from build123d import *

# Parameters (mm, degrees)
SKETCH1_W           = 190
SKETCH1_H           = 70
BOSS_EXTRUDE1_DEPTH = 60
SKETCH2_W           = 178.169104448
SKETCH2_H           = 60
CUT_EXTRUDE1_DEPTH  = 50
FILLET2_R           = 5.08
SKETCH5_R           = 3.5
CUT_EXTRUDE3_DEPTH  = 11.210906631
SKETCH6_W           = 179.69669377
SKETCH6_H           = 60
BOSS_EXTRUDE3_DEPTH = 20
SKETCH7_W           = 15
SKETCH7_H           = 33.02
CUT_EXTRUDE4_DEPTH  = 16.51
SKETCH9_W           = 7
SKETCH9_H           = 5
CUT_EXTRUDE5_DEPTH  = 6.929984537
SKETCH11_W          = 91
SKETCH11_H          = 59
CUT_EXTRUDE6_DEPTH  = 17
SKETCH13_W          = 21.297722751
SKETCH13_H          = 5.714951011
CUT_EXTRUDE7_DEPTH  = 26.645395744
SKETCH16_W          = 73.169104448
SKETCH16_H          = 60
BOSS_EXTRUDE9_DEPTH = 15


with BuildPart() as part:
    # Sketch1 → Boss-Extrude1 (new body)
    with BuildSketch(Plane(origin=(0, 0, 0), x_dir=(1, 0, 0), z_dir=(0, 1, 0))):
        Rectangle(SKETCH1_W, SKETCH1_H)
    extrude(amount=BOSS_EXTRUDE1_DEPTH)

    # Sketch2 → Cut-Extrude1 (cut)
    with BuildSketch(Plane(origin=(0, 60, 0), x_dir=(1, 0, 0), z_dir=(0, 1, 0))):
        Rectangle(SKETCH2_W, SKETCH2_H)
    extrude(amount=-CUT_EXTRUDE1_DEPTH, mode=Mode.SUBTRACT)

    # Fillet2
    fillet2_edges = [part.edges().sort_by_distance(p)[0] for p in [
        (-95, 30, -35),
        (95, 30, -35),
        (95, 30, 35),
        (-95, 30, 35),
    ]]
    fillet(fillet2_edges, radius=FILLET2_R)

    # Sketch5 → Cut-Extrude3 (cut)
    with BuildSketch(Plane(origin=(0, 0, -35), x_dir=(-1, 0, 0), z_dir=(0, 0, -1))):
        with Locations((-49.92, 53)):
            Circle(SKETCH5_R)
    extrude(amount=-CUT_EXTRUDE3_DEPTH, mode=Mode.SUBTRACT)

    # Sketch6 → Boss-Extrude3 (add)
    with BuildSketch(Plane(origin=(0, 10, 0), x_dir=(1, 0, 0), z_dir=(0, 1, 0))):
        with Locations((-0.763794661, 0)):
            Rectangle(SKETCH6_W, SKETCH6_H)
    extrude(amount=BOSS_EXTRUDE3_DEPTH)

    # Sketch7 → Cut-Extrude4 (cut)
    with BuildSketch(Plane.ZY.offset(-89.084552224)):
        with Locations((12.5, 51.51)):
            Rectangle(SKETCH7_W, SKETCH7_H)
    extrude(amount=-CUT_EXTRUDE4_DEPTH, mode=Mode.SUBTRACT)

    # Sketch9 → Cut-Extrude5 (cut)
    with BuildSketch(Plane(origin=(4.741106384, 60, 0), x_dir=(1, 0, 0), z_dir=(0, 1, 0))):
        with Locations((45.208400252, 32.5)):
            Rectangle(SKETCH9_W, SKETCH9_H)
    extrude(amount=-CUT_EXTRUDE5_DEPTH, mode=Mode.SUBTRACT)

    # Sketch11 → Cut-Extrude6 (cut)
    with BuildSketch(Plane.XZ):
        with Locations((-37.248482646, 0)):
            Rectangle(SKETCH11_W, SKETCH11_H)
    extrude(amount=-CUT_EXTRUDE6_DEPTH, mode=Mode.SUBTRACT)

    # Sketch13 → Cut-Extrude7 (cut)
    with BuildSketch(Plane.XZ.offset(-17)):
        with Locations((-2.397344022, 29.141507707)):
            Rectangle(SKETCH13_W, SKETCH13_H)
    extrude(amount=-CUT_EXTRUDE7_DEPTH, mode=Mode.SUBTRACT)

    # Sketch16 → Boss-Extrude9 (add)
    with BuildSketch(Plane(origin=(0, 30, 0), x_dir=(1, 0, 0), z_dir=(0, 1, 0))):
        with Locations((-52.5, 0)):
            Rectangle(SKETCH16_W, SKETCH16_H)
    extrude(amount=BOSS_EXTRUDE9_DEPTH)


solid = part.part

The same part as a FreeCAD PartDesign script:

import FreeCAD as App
import Part
import Sketcher


def edges_at(feature, points):
    """Names of the edges that pass closest to the given points."""
    edges = feature.Shape.Edges
    near = lambda p: min(range(len(edges)), key=lambda i: edges[i].distToShape(Part.Vertex(*p))[0])
    return sorted({f"Edge{near(p) + 1}" for p in points})


def add_polygon(sketch, points):
    """Adds a closed chain of lines whose ends are joined by coincident constraints."""
    first, n = sketch.GeometryCount, len(points)
    for a, b in zip(points, points[1:] + points[:1]):
        sketch.addGeometry(Part.LineSegment(App.Vector(*a, 0), App.Vector(*b, 0)), False)
    for i in range(n):
        sketch.addConstraint(Sketcher.Constraint("Coincident", first + i, 2, first + (i + 1) % n, 1))

doc = App.newDocument("Part")
body = doc.addObject("PartDesign::Body", "Body")

# Sketch on XZ plane
sketch1 = body.newObject("Sketcher::SketchObject", "Sketch")
sketch1.AttachmentSupport = (doc.getObject("XZ_Plane"), [""])
sketch1.MapMode = "FlatFace"
add_polygon(sketch1, [(-95, -35), (-95, 35), (95, 35), (95, -35)])  # lines 0-3
sketch1.addConstraint([
    Sketcher.Constraint("Vertical", 0),
    Sketcher.Constraint("Horizontal", 1),
    Sketcher.Constraint("Vertical", 2),
    Sketcher.Constraint("Horizontal", 3),
    Sketcher.Constraint("Symmetric", 0, 2, 2, 2, -1, 1),
    Sketcher.Constraint("DistanceX", 1, 1, 1, 2, 190.0),
    Sketcher.Constraint("DistanceY", 0, 1, 0, 2, 70.0),
])
pad1 = body.newObject("PartDesign::Pad", "Pad")
pad1.Profile = sketch1
pad1.Length = 60
pad1.Reversed = True

# Sketch on XZ plane
sketch2 = body.newObject("Sketcher::SketchObject", "Sketch001")
sketch2.AttachmentSupport = (doc.getObject("XZ_Plane"), [""])
sketch2.MapMode = "FlatFace"
sketch2.AttachmentOffset = App.Placement(App.Vector(0, 0, -60), App.Rotation())
add_polygon(sketch2, [(-89, -30), (-89, 30), (89, 30), (89, -30)])  # lines 0-3
sketch2.addConstraint([
    Sketcher.Constraint("Vertical", 0),
    Sketcher.Constraint("Horizontal", 1),
    Sketcher.Constraint("Vertical", 2),
    Sketcher.Constraint("Horizontal", 3),
    Sketcher.Constraint("Symmetric", 0, 2, 2, 2, -1, 1),
    Sketcher.Constraint("DistanceY", 0, 1, 0, 2, 60.0),
    Sketcher.Constraint("DistanceX", 1, 1, 1, 2, 178.169104),
])
pocket1 = body.newObject("PartDesign::Pocket", "Pocket")
pocket1.Profile = sketch2
pocket1.Length = 50
pocket1.Reversed = True
doc.recompute()

fillet = body.newObject("PartDesign::Fillet", "Fillet")
fillet.Base = (pocket1, edges_at(pocket1, [
    (-95, 30, -35),
    (95, 30, -35),
    (95, 30, 35),
    (-95, 30, 35),
]))
fillet.Radius = 5.08

# Sketch on XY plane
sketch3 = body.newObject("Sketcher::SketchObject", "Sketch002")
sketch3.AttachmentSupport = (doc.getObject("XY_Plane"), [""])
sketch3.MapMode = "FlatFace"
sketch3.AttachmentOffset = App.Placement(App.Vector(0, 0, -35), App.Rotation())
sketch3.addGeometry(Part.Circle(App.Vector(49.9, 53, 0), App.Vector(0, 0, 1), 3.5), False)
sketch3.addConstraint([
    Sketcher.Constraint("Diameter", 0, 7.0),
    Sketcher.Constraint("DistanceY", -1, 1, 0, 3, 53.0),
    Sketcher.Constraint("DistanceX", -1, 1, 0, 3, 49.92),
])
pocket2 = body.newObject("PartDesign::Pocket", "Pocket001")
pocket2.Profile = sketch3
pocket2.Length = 11.210907
pocket2.Reversed = True

# Sketch on XZ plane
sketch4 = body.newObject("Sketcher::SketchObject", "Sketch003")
sketch4.AttachmentSupport = (doc.getObject("XZ_Plane"), [""])
sketch4.MapMode = "FlatFace"
sketch4.AttachmentOffset = App.Placement(App.Vector(0, 0, -10), App.Rotation())
add_polygon(sketch4, [(-91, -30), (-91, 30), (89, 30), (89, -30)])  # lines 0-3
sketch4.addConstraint([
    Sketcher.Constraint("Vertical", 0),
    Sketcher.Constraint("Horizontal", 1),
    Sketcher.Constraint("Vertical", 2),
    Sketcher.Constraint("Horizontal", 3),
    Sketcher.Constraint("DistanceY", 0, 1, 0, 2, 60.0),
    Sketcher.Constraint("DistanceY", -1, 1, 0, 2, 30.0),
    Sketcher.Constraint("DistanceX", 1, 1, 1, 2, 179.696694),
    Sketcher.Constraint("DistanceX", 0, 2, -1, 1, 90.612142),
])
pad2 = body.newObject("PartDesign::Pad", "Pad001")
pad2.Profile = sketch4
pad2.Length = 20
pad2.Reversed = True

# Sketch on YZ plane
sketch5 = body.newObject("Sketcher::SketchObject", "Sketch004")
sketch5.AttachmentSupport = (doc.getObject("YZ_Plane"), [""])
sketch5.MapMode = "FlatFace"
sketch5.AttachmentOffset = App.Placement(App.Vector(0, 0, 89.084552), App.Rotation())
add_polygon(sketch5, [(68, 5), (35, 5), (35, 20), (68, 20)])  # lines 0-3
sketch5.addConstraint([
    Sketcher.Constraint("Horizontal", 0),
    Sketcher.Constraint("Vertical", 1),
    Sketcher.Constraint("Horizontal", 2),
    Sketcher.Constraint("Vertical", 3),
    Sketcher.Constraint("DistanceY", 1, 1, 1, 2, 15.0),
    Sketcher.Constraint("DistanceX", -1, 1, 0, 2, 35.0),
    Sketcher.Constraint("DistanceY", -1, 1, 0, 2, 5.0),
    Sketcher.Constraint("DistanceX", 0, 2, 0, 1, 33.02),
])
pocket3 = body.newObject("PartDesign::Pocket", "Pocket002")
pocket3.Profile = sketch5
pocket3.Length = 16.51
pocket3.Reversed = True

# Sketch on XZ plane
sketch6 = body.newObject("Sketcher::SketchObject", "Sketch005")
sketch6.AttachmentSupport = (doc.getObject("XZ_Plane"), [""])
sketch6.MapMode = "FlatFace"
sketch6.AttachmentOffset = App.Placement(App.Vector(0, 0, -60), App.Rotation())
add_polygon(sketch6, [(46, -35), (46, -30), (53, -30), (53, -35)])  # lines 0-3
sketch6.addConstraint([
    Sketcher.Constraint("Vertical", 0),
    Sketcher.Constraint("Horizontal", 1),
    Sketcher.Constraint("Vertical", 2),
    Sketcher.Constraint("Horizontal", 3),
    Sketcher.Constraint("DistanceX", 1, 1, 1, 2, 7.0),
    Sketcher.Constraint("DistanceY", 0, 1, 0, 2, 5.0),
    Sketcher.Constraint("DistanceY", 0, 2, -1, 1, 30.0),
    Sketcher.Constraint("DistanceX", -1, 1, 0, 2, 46.449507),
])
pocket4 = body.newObject("PartDesign::Pocket", "Pocket003")
pocket4.Profile = sketch6
pocket4.Length = 6.929985
pocket4.Reversed = True

# Sketch on XZ plane
sketch7 = body.newObject("Sketcher::SketchObject", "Sketch006")
sketch7.AttachmentSupport = (doc.getObject("XZ_Plane"), [""])
sketch7.MapMode = "FlatFace"
add_polygon(sketch7, [(-83, 30), (-83, -30), (8, -30), (8, 30)])  # lines 0-3
sketch7.addConstraint([
    Sketcher.Constraint("Vertical", 0),
    Sketcher.Constraint("Horizontal", 1),
    Sketcher.Constraint("Vertical", 2),
    Sketcher.Constraint("Horizontal", 3),
    Sketcher.Constraint("DistanceX", 1, 1, 1, 2, 91.0),
    Sketcher.Constraint("DistanceY", 0, 2, 0, 1, 59.0),
    Sketcher.Constraint("DistanceY", 0, 2, -1, 1, 29.5),
    Sketcher.Constraint("DistanceX", 0, 2, -1, 1, 82.748483),
])
pocket5 = body.newObject("PartDesign::Pocket", "Pocket004")
pocket5.Profile = sketch7
pocket5.Length = 17

# Sketch on XZ plane
sketch8 = body.newObject("Sketcher::SketchObject", "Sketch007")
sketch8.AttachmentSupport = (doc.getObject("XZ_Plane"), [""])
sketch8.MapMode = "FlatFace"
sketch8.AttachmentOffset = App.Placement(App.Vector(0, 0, -17), App.Rotation())
add_polygon(sketch8, [(-13, 32), (-13, 26), (8, 26), (8, 32)])  # lines 0-3
sketch8.addConstraint([
    Sketcher.Constraint("Vertical", 0),
    Sketcher.Constraint("Horizontal", 1),
    Sketcher.Constraint("Vertical", 2),
    Sketcher.Constraint("Horizontal", 3),
    Sketcher.Constraint("DistanceY", 0, 2, 0, 1, 5.714951),
    Sketcher.Constraint("DistanceX", 1, 1, 1, 2, 21.297723),
    Sketcher.Constraint("DistanceX", 0, 2, -1, 1, 13.046205),
    Sketcher.Constraint("DistanceY", -1, 1, 0, 2, 26.284032),
])
pocket6 = body.newObject("PartDesign::Pocket", "Pocket005")
pocket6.Profile = sketch8
pocket6.Length = 26.645396

# Sketch on XZ plane
sketch9 = body.newObject("Sketcher::SketchObject", "Sketch008")
sketch9.AttachmentSupport = (doc.getObject("XZ_Plane"), [""])
sketch9.MapMode = "FlatFace"
sketch9.AttachmentOffset = App.Placement(App.Vector(0, 0, -30), App.Rotation())
add_polygon(sketch9, [(-89, -30), (-89, 30), (-16, 30), (-16, -30)])  # lines 0-3
sketch9.addConstraint([
    Sketcher.Constraint("Vertical", 0),
    Sketcher.Constraint("Horizontal", 1),
    Sketcher.Constraint("Vertical", 2),
    Sketcher.Constraint("Horizontal", 3),
    Sketcher.Constraint("DistanceY", 0, 1, 0, 2, 60.0),
    Sketcher.Constraint("DistanceY", -1, 1, 0, 2, 30.0),
    Sketcher.Constraint("DistanceX", 1, 1, 1, 2, 73.169104),
    Sketcher.Constraint("DistanceX", 0, 2, -1, 1, 89.084552),
])
pad3 = body.newObject("PartDesign::Pad", "Pad002")
pad3.Profile = sketch9
pad3.Length = 15
pad3.Reversed = True

doc.recompute()
